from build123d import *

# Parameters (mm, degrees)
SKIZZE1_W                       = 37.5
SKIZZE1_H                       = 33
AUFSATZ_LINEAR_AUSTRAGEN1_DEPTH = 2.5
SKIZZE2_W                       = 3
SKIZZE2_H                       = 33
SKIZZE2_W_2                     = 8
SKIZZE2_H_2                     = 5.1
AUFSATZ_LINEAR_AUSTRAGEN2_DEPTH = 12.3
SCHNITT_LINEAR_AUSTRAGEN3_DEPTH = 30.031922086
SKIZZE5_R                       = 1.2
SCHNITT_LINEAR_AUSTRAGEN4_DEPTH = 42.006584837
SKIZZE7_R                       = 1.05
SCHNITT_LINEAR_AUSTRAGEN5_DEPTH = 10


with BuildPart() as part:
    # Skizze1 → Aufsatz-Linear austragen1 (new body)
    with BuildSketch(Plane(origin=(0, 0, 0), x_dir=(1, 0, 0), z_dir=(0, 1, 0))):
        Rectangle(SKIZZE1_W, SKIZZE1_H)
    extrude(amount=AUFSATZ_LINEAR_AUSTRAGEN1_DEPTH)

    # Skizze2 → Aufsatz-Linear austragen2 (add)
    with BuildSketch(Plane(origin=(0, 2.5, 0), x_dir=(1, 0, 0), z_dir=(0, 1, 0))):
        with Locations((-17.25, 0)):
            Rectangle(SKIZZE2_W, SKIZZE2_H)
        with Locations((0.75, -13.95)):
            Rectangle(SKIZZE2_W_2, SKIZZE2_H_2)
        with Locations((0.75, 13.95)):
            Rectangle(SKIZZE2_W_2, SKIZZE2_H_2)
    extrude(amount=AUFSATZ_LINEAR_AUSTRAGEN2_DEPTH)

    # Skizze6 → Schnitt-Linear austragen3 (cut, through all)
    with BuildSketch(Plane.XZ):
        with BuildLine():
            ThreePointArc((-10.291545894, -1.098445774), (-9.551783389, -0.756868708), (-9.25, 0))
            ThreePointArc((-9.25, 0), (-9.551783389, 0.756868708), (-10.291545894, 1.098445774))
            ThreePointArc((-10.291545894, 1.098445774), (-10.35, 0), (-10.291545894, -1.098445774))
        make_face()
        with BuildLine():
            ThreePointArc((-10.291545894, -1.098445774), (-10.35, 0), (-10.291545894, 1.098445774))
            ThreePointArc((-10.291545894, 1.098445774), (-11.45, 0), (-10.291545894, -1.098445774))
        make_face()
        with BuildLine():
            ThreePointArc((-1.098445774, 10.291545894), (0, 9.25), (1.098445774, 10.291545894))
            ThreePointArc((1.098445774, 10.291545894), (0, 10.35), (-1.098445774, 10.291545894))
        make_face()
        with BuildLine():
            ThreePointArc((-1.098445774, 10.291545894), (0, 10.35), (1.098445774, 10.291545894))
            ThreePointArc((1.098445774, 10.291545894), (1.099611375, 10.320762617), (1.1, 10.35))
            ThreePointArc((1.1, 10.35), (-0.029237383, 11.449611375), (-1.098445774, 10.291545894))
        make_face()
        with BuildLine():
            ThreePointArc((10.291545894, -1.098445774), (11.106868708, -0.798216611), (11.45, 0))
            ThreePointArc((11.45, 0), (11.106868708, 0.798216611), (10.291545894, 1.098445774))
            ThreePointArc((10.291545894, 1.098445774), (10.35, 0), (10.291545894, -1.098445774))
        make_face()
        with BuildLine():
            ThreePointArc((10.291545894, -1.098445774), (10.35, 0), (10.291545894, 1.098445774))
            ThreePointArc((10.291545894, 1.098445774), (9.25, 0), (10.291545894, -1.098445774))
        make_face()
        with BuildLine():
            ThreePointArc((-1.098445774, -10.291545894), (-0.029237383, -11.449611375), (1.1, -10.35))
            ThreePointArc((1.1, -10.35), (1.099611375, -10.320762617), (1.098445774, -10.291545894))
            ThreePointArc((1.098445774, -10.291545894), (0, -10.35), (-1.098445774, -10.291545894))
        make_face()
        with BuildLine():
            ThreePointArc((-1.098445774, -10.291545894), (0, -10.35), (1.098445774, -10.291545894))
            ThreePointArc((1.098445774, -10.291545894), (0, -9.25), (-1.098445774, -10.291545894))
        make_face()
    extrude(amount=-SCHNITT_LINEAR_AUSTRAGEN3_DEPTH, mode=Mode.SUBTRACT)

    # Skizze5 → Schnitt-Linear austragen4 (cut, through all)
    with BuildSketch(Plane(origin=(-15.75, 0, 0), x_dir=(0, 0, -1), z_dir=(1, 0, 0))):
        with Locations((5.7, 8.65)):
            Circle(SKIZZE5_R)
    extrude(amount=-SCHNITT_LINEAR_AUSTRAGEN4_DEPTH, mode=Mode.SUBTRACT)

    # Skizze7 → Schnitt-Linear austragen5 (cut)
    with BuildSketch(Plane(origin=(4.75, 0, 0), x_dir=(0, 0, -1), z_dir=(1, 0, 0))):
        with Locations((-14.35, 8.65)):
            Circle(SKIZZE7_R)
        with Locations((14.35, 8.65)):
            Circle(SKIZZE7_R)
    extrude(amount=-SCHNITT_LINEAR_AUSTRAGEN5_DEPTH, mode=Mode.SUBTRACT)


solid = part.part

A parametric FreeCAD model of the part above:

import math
import FreeCAD as App
import Part
import Sketcher

V = App.Vector
Q = App.Units.Quantity


def add_polygon(sketch, points):
    """Adds a closed chain of lines whose ends are joined by coincident constraints."""
    first, n = sketch.GeometryCount, len(points)
    for a, b in zip(points, points[1:] + points[:1]):
        sketch.addGeometry(Part.LineSegment(App.Vector(*a, 0), App.Vector(*b, 0)), False)
    for i in range(n):
        sketch.addConstraint(Sketcher.Constraint("Coincident", first + i, 2, first + (i + 1) % n, 1))

doc = App.newDocument("Part")
body = doc.addObject("PartDesign::Body", "Body")

# Sketch on XZ plane
sketch1 = doc.addObject("Sketcher::SketchObject", "Sketch")
body.addObject(sketch1)
sketch1.AttachmentSupport = (doc.XZ_Plane, [""])
sketch1.MapMode = "FlatFace"
add_polygon(sketch1, [(-19, -16), (-19, 16), (19, 16), (19, -16)])  # lines 0-3
sketch1.addConstraint([
    Sketcher.Constraint("Vertical", 0),
    Sketcher.Constraint("Horizontal", 1),
    Sketcher.Constraint("Vertical", 2),
    Sketcher.Constraint("Horizontal", 3),
    Sketcher.Constraint("Symmetric", 0, 2, 2, 2, -1, 1),
    Sketcher.Constraint("DistanceY", 0, 1, 0, 2, Q("33 mm")),
    Sketcher.Constraint("DistanceX", 1, 1, 1, 2, Q("37.5 mm")),
])
pad1 = doc.addObject("PartDesign::Pad", "Pad")
body.addObject(pad1)
pad1.Profile = sketch1
pad1.Length = 2.5
pad1.Reversed = True

# Sketch on XZ plane
sketch2 = doc.addObject("Sketcher::SketchObject", "Sketch001")
body.addObject(sketch2)
sketch2.AttachmentSupport = (doc.XZ_Plane, [""])
sketch2.MapMode = "FlatFace"
sketch2.AttachmentOffset = App.Placement(V(0, 0, -2.5), App.Rotation())
add_polygon(sketch2, [(-18.8, -16.5), (-18.8, 16.5), (-15.8, 16.5), (-15.8, -16.5)])  # lines 0-3
add_polygon(sketch2, [(-3.2, 11.4), (-3.2, 16.5), (4.8, 16.5), (4.8, 11.4)])  # lines 4-7
add_polygon(sketch2, [(-3.2, -16.5), (-3.2, -11.4), (4.8, -11.4), (4.8, -16.5)])  # lines 8-11
sketch2.addConstraint([
    Sketcher.Constraint("Vertical", 0),
    Sketcher.Constraint("Horizontal", 1),
    Sketcher.Constraint("Vertical", 2),
    Sketcher.Constraint("Horizontal", 3),
    Sketcher.Constraint("Vertical", 4),
    Sketcher.Constraint("Horizontal", 5),
    Sketcher.Constraint("Vertical", 6),
    Sketcher.Constraint("Horizontal", 7),
    Sketcher.Constraint("Vertical", 8),
    Sketcher.Constraint("Horizontal", 9),
    Sketcher.Constraint("Vertical", 10),
    Sketcher.Constraint("Horizontal", 11),
    Sketcher.Constraint("Symmetric", 7, 2, 8, 2, -1),
    Sketcher.Constraint("Symmetric", 5, 2, 10, 2, -1),
    Sketcher.Constraint("Horizontal", 1, 2, 4, 2),
    Sketcher.Constraint("Horizontal", 3, 2, 10, 2),
    Sketcher.Constraint("DistanceX", 1, 1, 1, 2, Q("3 mm")),
    Sketcher.Constraint("DistanceX", 5, 1, 5, 2, Q("8 mm")),
    Sketcher.Constraint("DistanceY", 0, 1, 0, 2, Q("33 mm")),
    Sketcher.Constraint("DistanceY", 4, 1, 4, 2, Q("5.1 mm")),
    Sketcher.Constraint("DistanceX", 1, 2, 4, 2, Q("12.5 mm")),
    Sketcher.Constraint("DistanceX", 0, 2, -1, 1, Q("18.75 mm")),
])
pad2 = doc.addObject("PartDesign::Pad", "Pad001")
body.addObject(pad2)
pad2.Profile = sketch2
pad2.Length = 12.3
pad2.Reversed = True

# Sketch on XZ plane
sketch3 = doc.addObject("Sketcher::SketchObject", "Sketch002")
body.addObject(sketch3)
sketch3.AttachmentSupport = (doc.XZ_Plane, [""])
sketch3.MapMode = "FlatFace"
sketch3.addGeometry([
    Part.ArcOfCircle(Part.Circle(V(-10.35, 0, 0), V(0, 0, 1), 1.1), math.radians(-87), math.radians(0)),  # 0
    Part.ArcOfCircle(Part.Circle(V(-10.35, 0, 0), V(0, 0, 1), 1.1), math.radians(0), math.radians(87)),  # 1
    Part.ArcOfCircle(Part.Circle(V(-10.35, 0, 0), V(0, 0, 1), 1.1), math.radians(87), math.radians(273)),  # 2
    Part.ArcOfCircle(Part.Circle(V(0, 10.35, 0), V(0, 0, 1), 1.1), math.radians(-177), math.radians(-3)),  # 3
    Part.ArcOfCircle(Part.Circle(V(0, 10.35, 0), V(0, 0, 1), 1.1), math.radians(-3.05), math.radians(0)),  # 4
    Part.ArcOfCircle(Part.Circle(V(0, 10.35, 0), V(0, 0, 1), 1.1), math.radians(0), math.radians(183)),  # 5
    Part.ArcOfCircle(Part.Circle(V(10.35, 0, 0), V(0, 0, 1), 1.1), math.radians(-93), math.radians(0)),  # 6
    Part.ArcOfCircle(Part.Circle(V(10.35, 0, 0), V(0, 0, 1), 1.1), math.radians(0), math.radians(93)),  # 7
    Part.ArcOfCircle(Part.Circle(V(10.35, 0, 0), V(0, 0, 1), 1.1), math.radians(93), math.radians(267)),  # 8
    Part.ArcOfCircle(Part.Circle(V(0, -10.35, 0), V(0, 0, 1), 1.1), math.radians(177), math.radians(360)),  # 9
    Part.ArcOfCircle(Part.Circle(V(0, -10.35, 0), V(0, 0, 1), 1.1), math.radians(0), math.radians(3.05)),  # 10
    Part.ArcOfCircle(Part.Circle(V(0, -10.35, 0), V(0, 0, 1), 1.1), math.radians(3), math.radians(177)),  # 11
], False)
sketch3.addConstraint([
    Sketcher.Constraint("Tangent", 0, 2, 1, 1),
    Sketcher.Constraint("Tangent", 1, 2, 2, 1),
    Sketcher.Constraint("Tangent", 2, 2, 0, 1),
    Sketcher.Constraint("Tangent", 3, 2, 4, 1),
    Sketcher.Constraint("Tangent", 4, 2, 5, 1),
    Sketcher.Constraint("Tangent", 5, 2, 3, 1),
    Sketcher.Constraint("Tangent", 6, 2, 7, 1),
    Sketcher.Constraint("Tangent", 7, 2, 8, 1),
    Sketcher.Constraint("Tangent", 8, 2, 6, 1),
    Sketcher.Constraint("Tangent", 9, 2, 10, 1),
    Sketcher.Constraint("Tangent", 10, 2, 11, 1),
    Sketcher.Constraint("Tangent", 11, 2, 9, 1),
    Sketcher.Constraint("Equal", 2, 3),
    Sketcher.Constraint("Equal", 5, 6),
    Sketcher.Constraint("Equal", 8, 9),
    Sketcher.Constraint("Symmetric", 0, 3, 6, 3, -1, 1),
    Sketcher.Constraint("Symmetric", 3, 3, 9, 3, -1, 1),
    Sketcher.Constraint("Symmetric", 3, 2, 5, 2, -2),
    Sketcher.Constraint("Symmetric", 1, 2, 7, 2, -2),
    Sketcher.Constraint("PointOnObject", 0, 2, -1),
    Sketcher.Constraint("PointOnObject", 6, 2, -1),
    Sketcher.Constraint("Horizontal", 5, 3, 4, 2),
    Sketcher.Constraint("Horizontal", 2, 2, 8, 2),
    Sketcher.Constraint("Horizontal", 11, 3, 9, 2),
    Sketcher.Constraint("Horizontal", 10, 2, 11, 2),
    Sketcher.Constraint("Vertical", 1, 2, 2, 2),
    Sketcher.Constraint("Vertical", 3, 2, 10, 2),
    Sketcher.Constraint("Radius", 0, Q("1.1 mm")),
    Sketcher.Constraint("DistanceX", 2, 3, 6, 3, Q("20.7 mm")),
    Sketcher.Constraint("DistanceY", -1, 1, 3, 3, Q("10.35 mm")),
    Sketcher.Constraint("DistanceX", 3, 2, 7, 2, Q("9.1931 mm")),
    Sketcher.Constraint("DistanceY", 7, 2, 3, 2, Q("9.1931 mm")),
])
pocket1 = doc.addObject("PartDesign::Pocket", "Pocket")
body.addObject(pocket1)
pocket1.Profile = sketch3
pocket1.Type = "ThroughAll"

# Sketch on YZ plane
sketch4 = doc.addObject("Sketcher::SketchObject", "Sketch003")
body.addObject(sketch4)
sketch4.AttachmentSupport = (doc.YZ_Plane, [""])
sketch4.MapMode = "FlatFace"
sketch4.AttachmentOffset = App.Placement(V(0, 0, -15.75), App.Rotation())
sketch4.addGeometry(Part.Circle(V(8.7, -5.7, 0), V(0, 0, 1), 1.2), False)
sketch4.addConstraint([
    Sketcher.Constraint("Diameter", 0, Q("2.4 mm")),
    Sketcher.Constraint("DistanceY", 0, 3, -1, 1, Q("5.7 mm")),
    Sketcher.Constraint("DistanceX", -1, 1, 0, 3, Q("8.65 mm")),
])
pocket2 = doc.addObject("PartDesign::Pocket", "Pocket001")
body.addObject(pocket2)
pocket2.Profile = sketch4
pocket2.Type = "ThroughAll"

# Sketch on YZ plane
sketch5 = doc.addObject("Sketcher::SketchObject", "Sketch004")
body.addObject(sketch5)
sketch5.AttachmentSupport = (doc.YZ_Plane, [""])
sketch5.MapMode = "FlatFace"
sketch5.AttachmentOffset = App.Placement(V(0, 0, 4.75), App.Rotation())
sketch5.addGeometry([
    Part.Circle(V(8.7, 14.3, 0), V(0, 0, 1), 1.1),
    Part.Circle(V(8.7, -14.3, 0), V(0, 0, 1), 1.1),
], False)
sketch5.addConstraint([
    Sketcher.Constraint("Equal", 0, 1),
    Sketcher.Constraint("Symmetric", 0, 3, 1, 3, -1),
    Sketcher.Constraint("Diameter", 0, Q("2.1 mm")),
    Sketcher.Constraint("DistanceY", 1, 3, 0, 3, Q("28.7 mm")),
    Sketcher.Constraint("DistanceX", -1, 1, 0, 3, Q("8.65 mm")),
])
pocket3 = doc.addObject("PartDesign::Pocket", "Pocket002")
body.addObject(pocket3)
pocket3.Profile = sketch5
pocket3.Length = 10

doc.recompute()
